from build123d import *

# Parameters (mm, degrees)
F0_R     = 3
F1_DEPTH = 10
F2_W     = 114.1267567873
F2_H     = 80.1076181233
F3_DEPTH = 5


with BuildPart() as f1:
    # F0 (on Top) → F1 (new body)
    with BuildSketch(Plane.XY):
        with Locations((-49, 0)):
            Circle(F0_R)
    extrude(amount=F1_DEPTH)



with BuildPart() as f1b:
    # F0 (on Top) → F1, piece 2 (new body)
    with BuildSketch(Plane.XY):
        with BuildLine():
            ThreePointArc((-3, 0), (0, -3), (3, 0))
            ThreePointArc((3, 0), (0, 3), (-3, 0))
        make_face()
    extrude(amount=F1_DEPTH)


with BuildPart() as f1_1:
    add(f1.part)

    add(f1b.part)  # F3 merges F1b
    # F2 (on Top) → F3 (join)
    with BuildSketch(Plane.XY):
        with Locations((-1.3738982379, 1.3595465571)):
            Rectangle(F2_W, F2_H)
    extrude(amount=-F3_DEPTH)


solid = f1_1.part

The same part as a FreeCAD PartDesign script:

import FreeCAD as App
import Part
import Sketcher
from FreeCAD import Vector
Q = App.Units.Quantity

doc = App.newDocument("Part")
params = doc.addObject("Spreadsheet::Sheet", "Params")
for row, (alias, value) in enumerate([
    ("sketch1_diameter", "6 mm"),
    ("pad1_length", "10 mm"),
    ("sketch2_diameter", "6 mm"),
    ("pad2_length", "10 mm"),
    ("pad3_length", "5 mm"),
], start=1):
    params.set(f"A{row}", alias)
    params.set(f"B{row}", "=" + value)
    params.setAlias(f"B{row}", alias)

body = doc.addObject("PartDesign::Body", "Body")

sketch1 = body.newObject("Sketcher::SketchObject", "Sketch")
sketch1.AttachmentSupport = (doc.getObject("XY_Plane"), [""])
sketch1.MapMode = "FlatFace"
sketch1.addGeometry(Part.Circle(Vector(-49, 0, 0), Vector(0, 0, 1), 3), False)
sketch1.addConstraint(Sketcher.Constraint("PointOnObject", 0, 3, -1))
sketch1.addConstraint(Sketcher.Constraint("Diameter", 0, Q("6 mm")))
sketch1.addConstraint(Sketcher.Constraint("DistanceX", 0, 3, -1, 1, Q("49 mm")))
sketch1.setExpression("Constraints[1]", "Params.sketch1_diameter")
pad1 = body.newObject("PartDesign::Pad", "Pad")
pad1.Profile = sketch1
pad1.setExpression("Length", "Params.pad1_length")
body2 = doc.addObject("PartDesign::Body", "Body001")

sketch2 = body2.newObject("Sketcher::SketchObject", "Sketch001")
sketch2.AttachmentSupport = (doc.getObject("XY_Plane001"), [""])
sketch2.MapMode = "FlatFace"
sketch2.addGeometry(Part.Circle(Vector(0, 0, 0), Vector(0, 0, 1), 3), False)
sketch2.addConstraint(Sketcher.Constraint("Coincident", 0, 3, -1, 1))
sketch2.addConstraint(Sketcher.Constraint("Diameter", 0, Q("6 mm")))
sketch2.setExpression("Constraints[1]", "Params.sketch2_diameter")
pad2 = body2.newObject("PartDesign::Pad", "Pad001")
pad2.Profile = sketch2
pad2.setExpression("Length", "Params.pad2_length")
body.AllowCompound = True
doc.recompute()

boolean = body.newObject("PartDesign::Boolean", "Boolean")
boolean.Type = "Fuse"
boolean.addObjects([body2])

sketch3 = body.newObject("Sketcher::SketchObject", "Sketch002")
sketch3.AttachmentSupport = (doc.getObject("XY_Plane"), [""])
sketch3.MapMode = "FlatFace"
sketch3.addGeometry(Part.LineSegment(Vector(-58, 41, 0), Vector(-58, -39, 0)), False)
sketch3.addGeometry(Part.LineSegment(Vector(-58, -39, 0), Vector(56, -39, 0)), False)
sketch3.addGeometry(Part.LineSegment(Vector(56, -39, 0), Vector(56, 41, 0)), False)
sketch3.addGeometry(Part.LineSegment(Vector(56, 41, 0), Vector(-58, 41, 0)), False)
sketch3.addConstraint(Sketcher.Constraint("Coincident", 0, 2, 1, 1))
sketch3.addConstraint(Sketcher.Constraint("Coincident", 1, 2, 2, 1))
sketch3.addConstraint(Sketcher.Constraint("Coincident", 2, 2, 3, 1))
sketch3.addConstraint(Sketcher.Constraint("Coincident", 3, 2, 0, 1))
sketch3.addConstraint(Sketcher.Constraint("Vertical", 0))
sketch3.addConstraint(Sketcher.Constraint("Horizontal", 1))
sketch3.addConstraint(Sketcher.Constraint("Vertical", 2))
sketch3.addConstraint(Sketcher.Constraint("Horizontal", 3))
sketch3.addConstraint(Sketcher.Constraint("DistanceY", 0, 2, 0, 1, Q("80.107618 mm")))
sketch3.addConstraint(Sketcher.Constraint("DistanceX", 1, 1, 1, 2, Q("114.126757 mm")))
sketch3.addConstraint(Sketcher.Constraint("DistanceX", -1, 1, 1, 2, Q("55.68948 mm")))
sketch3.addConstraint(Sketcher.Constraint("DistanceY", 0, 2, -1, 1, Q("38.694263 mm")))
pad3 = body.newObject("PartDesign::Pad", "Pad002")
pad3.Profile = sketch3
pad3.setExpression("Length", "Params.pad3_length")
pad3.Reversed = True

doc.recompute()
